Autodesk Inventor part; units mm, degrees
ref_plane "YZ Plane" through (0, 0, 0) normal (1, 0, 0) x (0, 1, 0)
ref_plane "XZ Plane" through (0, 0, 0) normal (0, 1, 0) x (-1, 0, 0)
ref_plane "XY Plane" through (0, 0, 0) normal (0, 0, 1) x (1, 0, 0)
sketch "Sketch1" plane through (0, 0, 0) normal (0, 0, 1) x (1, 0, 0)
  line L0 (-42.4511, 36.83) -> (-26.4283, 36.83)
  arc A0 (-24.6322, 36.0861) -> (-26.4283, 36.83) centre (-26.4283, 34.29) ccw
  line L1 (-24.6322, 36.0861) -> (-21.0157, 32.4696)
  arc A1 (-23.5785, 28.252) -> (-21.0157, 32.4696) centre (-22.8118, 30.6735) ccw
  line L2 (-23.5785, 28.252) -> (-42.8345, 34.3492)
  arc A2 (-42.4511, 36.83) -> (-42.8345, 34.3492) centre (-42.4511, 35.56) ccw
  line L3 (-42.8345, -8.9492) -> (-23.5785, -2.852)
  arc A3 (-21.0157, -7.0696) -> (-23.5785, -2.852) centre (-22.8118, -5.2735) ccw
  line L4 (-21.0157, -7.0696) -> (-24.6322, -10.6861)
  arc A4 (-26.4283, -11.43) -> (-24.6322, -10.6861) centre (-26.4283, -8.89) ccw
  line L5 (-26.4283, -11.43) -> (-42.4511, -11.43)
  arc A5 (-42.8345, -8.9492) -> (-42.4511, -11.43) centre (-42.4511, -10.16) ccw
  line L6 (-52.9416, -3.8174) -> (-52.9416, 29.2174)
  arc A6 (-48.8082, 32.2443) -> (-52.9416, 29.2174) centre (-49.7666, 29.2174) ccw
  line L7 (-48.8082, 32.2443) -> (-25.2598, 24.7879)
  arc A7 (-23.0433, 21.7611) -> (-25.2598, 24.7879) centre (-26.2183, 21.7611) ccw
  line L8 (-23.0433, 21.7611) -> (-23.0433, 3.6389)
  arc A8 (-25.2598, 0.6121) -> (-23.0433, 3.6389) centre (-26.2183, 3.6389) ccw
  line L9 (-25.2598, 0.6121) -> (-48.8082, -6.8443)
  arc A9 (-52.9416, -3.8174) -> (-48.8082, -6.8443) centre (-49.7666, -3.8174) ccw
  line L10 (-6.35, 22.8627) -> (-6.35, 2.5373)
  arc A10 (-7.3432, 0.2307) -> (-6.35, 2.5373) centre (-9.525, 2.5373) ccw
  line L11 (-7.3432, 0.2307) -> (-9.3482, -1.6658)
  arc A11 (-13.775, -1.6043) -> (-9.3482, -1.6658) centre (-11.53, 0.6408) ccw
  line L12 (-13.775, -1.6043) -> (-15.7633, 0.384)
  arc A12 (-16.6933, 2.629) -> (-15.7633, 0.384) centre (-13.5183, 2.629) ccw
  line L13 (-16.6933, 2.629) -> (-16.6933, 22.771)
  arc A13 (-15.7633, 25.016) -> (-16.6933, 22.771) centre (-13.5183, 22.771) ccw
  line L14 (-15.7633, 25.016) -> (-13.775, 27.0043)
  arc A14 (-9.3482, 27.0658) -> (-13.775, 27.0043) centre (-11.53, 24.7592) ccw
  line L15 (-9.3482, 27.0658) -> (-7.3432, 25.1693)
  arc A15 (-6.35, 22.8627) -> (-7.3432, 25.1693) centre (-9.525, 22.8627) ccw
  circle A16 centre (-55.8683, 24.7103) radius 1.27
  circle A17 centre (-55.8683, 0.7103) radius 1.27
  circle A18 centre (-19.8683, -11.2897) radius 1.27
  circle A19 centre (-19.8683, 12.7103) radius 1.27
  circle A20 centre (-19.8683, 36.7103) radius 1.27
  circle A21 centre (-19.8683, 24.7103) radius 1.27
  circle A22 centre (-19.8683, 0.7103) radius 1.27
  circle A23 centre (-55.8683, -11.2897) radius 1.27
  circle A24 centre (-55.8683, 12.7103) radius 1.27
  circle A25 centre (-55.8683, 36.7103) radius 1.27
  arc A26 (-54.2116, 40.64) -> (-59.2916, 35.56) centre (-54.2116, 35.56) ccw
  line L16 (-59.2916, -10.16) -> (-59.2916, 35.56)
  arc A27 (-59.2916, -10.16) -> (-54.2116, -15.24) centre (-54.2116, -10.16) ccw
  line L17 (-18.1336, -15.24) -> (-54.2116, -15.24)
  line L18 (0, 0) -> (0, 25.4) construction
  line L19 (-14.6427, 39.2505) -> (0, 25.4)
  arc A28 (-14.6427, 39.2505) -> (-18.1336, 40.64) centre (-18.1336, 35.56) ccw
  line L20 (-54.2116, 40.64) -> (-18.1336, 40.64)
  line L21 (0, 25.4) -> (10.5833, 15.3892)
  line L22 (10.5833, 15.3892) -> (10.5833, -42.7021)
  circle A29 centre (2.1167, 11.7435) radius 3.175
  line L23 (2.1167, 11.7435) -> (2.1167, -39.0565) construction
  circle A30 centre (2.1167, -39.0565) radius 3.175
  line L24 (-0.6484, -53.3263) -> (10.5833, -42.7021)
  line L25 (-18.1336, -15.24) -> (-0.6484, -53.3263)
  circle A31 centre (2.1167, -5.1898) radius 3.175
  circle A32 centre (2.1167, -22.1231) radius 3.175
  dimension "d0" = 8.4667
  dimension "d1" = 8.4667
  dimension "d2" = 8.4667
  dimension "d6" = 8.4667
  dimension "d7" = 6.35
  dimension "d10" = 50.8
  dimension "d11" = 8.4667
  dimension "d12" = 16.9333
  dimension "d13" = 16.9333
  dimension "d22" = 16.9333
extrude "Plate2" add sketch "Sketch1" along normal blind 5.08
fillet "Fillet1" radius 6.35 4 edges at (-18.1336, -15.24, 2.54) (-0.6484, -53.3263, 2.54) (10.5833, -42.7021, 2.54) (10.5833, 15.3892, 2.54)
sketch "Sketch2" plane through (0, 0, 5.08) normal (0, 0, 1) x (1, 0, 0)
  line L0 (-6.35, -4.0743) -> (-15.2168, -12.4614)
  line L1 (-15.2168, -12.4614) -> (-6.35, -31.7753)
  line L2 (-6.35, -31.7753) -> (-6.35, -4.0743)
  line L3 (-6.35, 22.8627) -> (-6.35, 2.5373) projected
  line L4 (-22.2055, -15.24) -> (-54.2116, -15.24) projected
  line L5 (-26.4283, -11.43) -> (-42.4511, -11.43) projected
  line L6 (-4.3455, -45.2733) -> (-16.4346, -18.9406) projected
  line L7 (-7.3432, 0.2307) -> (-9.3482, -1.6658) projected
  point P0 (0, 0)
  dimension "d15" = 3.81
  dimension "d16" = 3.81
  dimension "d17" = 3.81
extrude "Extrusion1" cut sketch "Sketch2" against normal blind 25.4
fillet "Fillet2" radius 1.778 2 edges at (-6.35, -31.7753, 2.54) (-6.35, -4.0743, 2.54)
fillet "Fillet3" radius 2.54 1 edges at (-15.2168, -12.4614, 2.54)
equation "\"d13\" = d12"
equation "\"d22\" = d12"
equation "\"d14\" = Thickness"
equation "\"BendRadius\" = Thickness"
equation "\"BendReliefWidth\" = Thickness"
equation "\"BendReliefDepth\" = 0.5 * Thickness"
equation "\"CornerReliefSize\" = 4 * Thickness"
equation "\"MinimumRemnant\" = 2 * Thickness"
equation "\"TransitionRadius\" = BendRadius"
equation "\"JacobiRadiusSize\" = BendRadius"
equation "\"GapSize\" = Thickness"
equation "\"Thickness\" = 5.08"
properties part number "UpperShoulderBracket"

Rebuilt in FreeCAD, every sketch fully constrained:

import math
import FreeCAD as App
import Part
import Sketcher
from FreeCAD import Vector
Q = App.Units.Quantity


def edges_at(feature, points):
    """Names of the edges that pass closest to the given points."""
    edges = feature.Shape.Edges
    near = lambda p: min(range(len(edges)), key=lambda i: edges[i].distToShape(Part.Vertex(*p))[0])
    return sorted({f"Edge{near(p) + 1}" for p in points})

doc = App.newDocument("Part")
body = doc.addObject("PartDesign::Body", "Body")

# Sketch on XY plane
sketch1 = body.newObject("Sketcher::SketchObject", "Sketch")
sketch1.AttachmentSupport = (doc.getObject("XY_Plane"), [""])
sketch1.MapMode = "FlatFace"
sketch1.addGeometry([
    Part.LineSegment(Vector(-18.1, 40.6, 0), Vector(-54.2, 40.6, 0)),  # 0
    Part.ArcOfCircle(Part.Circle(Vector(-54.2, 35.6, 0), Vector(0, 0, 1), 5.1), math.radians(90), math.radians(180)),  # 1
    Part.LineSegment(Vector(-59.3, 35.6, 0), Vector(-59.3, -10.2, 0)),  # 2
    Part.ArcOfCircle(Part.Circle(Vector(-54.2, -10.2, 0), Vector(0, 0, 1), 5.1), math.radians(180), math.radians(270)),  # 3
    Part.LineSegment(Vector(-54.2, -15.2, 0), Vector(-18.1, -15.2, 0)),  # 4
    Part.LineSegment(Vector(-18.1, -15.2, 0), Vector(-0.6, -53.3, 0)),  # 5
    Part.LineSegment(Vector(-0.6, -53.3, 0), Vector(10.6, -42.7, 0)),  # 6
    Part.LineSegment(Vector(10.6, -42.7, 0), Vector(10.6, 15.4, 0)),  # 7
    Part.LineSegment(Vector(10.6, 15.4, 0), Vector(0, 25.4, 0)),  # 8
    Part.LineSegment(Vector(0, 25.4, 0), Vector(-14.6, 39.3, 0)),  # 9
    Part.ArcOfCircle(Part.Circle(Vector(-18.1, 35.6, 0), Vector(0, 0, 1), 5.1), math.radians(47), math.radians(90)),  # 10
    Part.Circle(Vector(-55.9, -11.3, 0), Vector(0, 0, 1), 1.3),  # 11
    Part.ArcOfCircle(Part.Circle(Vector(-42.5, -10.2, 0), Vector(0, 0, 1), 1.3), math.radians(108), math.radians(270)),  # 12
    Part.LineSegment(Vector(-42.8, -8.9, 0), Vector(-23.6, -2.9, 0)),  # 13
    Part.ArcOfCircle(Part.Circle(Vector(-22.8, -5.3, 0), Vector(0, 0, 1), 2.5), math.radians(-45), math.radians(108)),  # 14
    Part.LineSegment(Vector(-21, -7.1, 0), Vector(-24.6, -10.7, 0)),  # 15
    Part.ArcOfCircle(Part.Circle(Vector(-26.4, -8.9, 0), Vector(0, 0, 1), 2.5), math.radians(-90), math.radians(-45)),  # 16
    Part.LineSegment(Vector(-26.4, -11.4, 0), Vector(-42.5, -11.4, 0)),  # 17
    Part.Circle(Vector(2.1, -39.1, 0), Vector(0, 0, 1), 3.2),  # 18
    Part.Circle(Vector(-19.9, -11.3, 0), Vector(0, 0, 1), 1.3),  # 19
    Part.Circle(Vector(2.1, -22.1, 0), Vector(0, 0, 1), 3.2),  # 20
    Part.Circle(Vector(-55.9, 0.7, 0), Vector(0, 0, 1), 1.3),  # 21
    Part.Circle(Vector(-55.9, 12.7, 0), Vector(0, 0, 1), 1.3),  # 22
    Part.ArcOfCircle(Part.Circle(Vector(-49.8, -3.8, 0), Vector(0, 0, 1), 3.2), math.radians(180), math.radians(288)),  # 23
    Part.LineSegment(Vector(-52.9, -3.8, 0), Vector(-52.9, 29.2, 0)),  # 24
    Part.ArcOfCircle(Part.Circle(Vector(-49.8, 29.2, 0), Vector(0, 0, 1), 3.2), math.radians(72), math.radians(180)),  # 25
    Part.LineSegment(Vector(-48.8, 32.2, 0), Vector(-25.3, 24.8, 0)),  # 26
    Part.ArcOfCircle(Part.Circle(Vector(-26.2, 21.8, 0), Vector(0, 0, 1), 3.2), math.radians(0), math.radians(72)),  # 27
    Part.LineSegment(Vector(-23, 21.8, 0), Vector(-23, 3.6, 0)),  # 28
    Part.ArcOfCircle(Part.Circle(Vector(-26.2, 3.6, 0), Vector(0, 0, 1), 3.2), math.radians(-72), math.radians(0)),  # 29
    Part.LineSegment(Vector(-25.3, 0.6, 0), Vector(-48.8, -6.8, 0)),  # 30
    Part.Circle(Vector(-55.9, 24.7, 0), Vector(0, 0, 1), 1.3),  # 31
    Part.Circle(Vector(-55.9, 36.7, 0), Vector(0, 0, 1), 1.3),  # 32
    Part.ArcOfCircle(Part.Circle(Vector(-42.5, 35.6, 0), Vector(0, 0, 1), 1.3), math.radians(90), math.radians(252)),  # 33
    Part.LineSegment(Vector(-42.5, 36.8, 0), Vector(-26.4, 36.8, 0)),  # 34
    Part.ArcOfCircle(Part.Circle(Vector(-26.4, 34.3, 0), Vector(0, 0, 1), 2.5), math.radians(45), math.radians(90)),  # 35
    Part.LineSegment(Vector(-24.6, 36.1, 0), Vector(-21, 32.5, 0)),  # 36
    Part.ArcOfCircle(Part.Circle(Vector(-22.8, 30.7, 0), Vector(0, 0, 1), 2.5), math.radians(-108), math.radians(45)),  # 37
    Part.LineSegment(Vector(-23.6, 28.3, 0), Vector(-42.8, 34.3, 0)),  # 38
    Part.Circle(Vector(-19.9, 0.7, 0), Vector(0, 0, 1), 1.3),  # 39
    Part.Circle(Vector(-19.9, 12.7, 0), Vector(0, 0, 1), 1.3),  # 40
    Part.ArcOfCircle(Part.Circle(Vector(-9.5, 22.9, 0), Vector(0, 0, 1), 3.2), math.radians(0), math.radians(47)),  # 41
    Part.LineSegment(Vector(-6.3, 22.9, 0), Vector(-6.3, 2.5, 0)),  # 42
    Part.ArcOfCircle(Part.Circle(Vector(-9.5, 2.5, 0), Vector(0, 0, 1), 3.2), math.radians(-47), math.radians(0)),  # 43
    Part.LineSegment(Vector(-7.3, 0.2, 0), Vector(-9.3, -1.7, 0)),  # 44
    Part.ArcOfCircle(Part.Circle(Vector(-11.5, 0.6, 0), Vector(0, 0, 1), 3.2), math.radians(-135), math.radians(-47)),  # 45
    Part.LineSegment(Vector(-13.8, -1.6, 0), Vector(-15.8, 0.4, 0)),  # 46
    Part.ArcOfCircle(Part.Circle(Vector(-13.5, 2.6, 0), Vector(0, 0, 1), 3.2), math.radians(180), math.radians(225)),  # 47
    Part.LineSegment(Vector(-16.7, 2.6, 0), Vector(-16.7, 22.8, 0)),  # 48
    Part.ArcOfCircle(Part.Circle(Vector(-13.5, 22.8, 0), Vector(0, 0, 1), 3.2), math.radians(135), math.radians(180)),  # 49
    Part.LineSegment(Vector(-15.8, 25, 0), Vector(-13.8, 27, 0)),  # 50
    Part.ArcOfCircle(Part.Circle(Vector(-11.5, 24.8, 0), Vector(0, 0, 1), 3.2), math.radians(47), math.radians(135)),  # 51
    Part.LineSegment(Vector(-9.3, 27.1, 0), Vector(-7.3, 25.2, 0)),  # 52
    Part.Circle(Vector(2.1, -5.2, 0), Vector(0, 0, 1), 3.2),  # 53
    Part.Circle(Vector(2.1, 11.7, 0), Vector(0, 0, 1), 3.2),  # 54
    Part.Circle(Vector(-19.9, 24.7, 0), Vector(0, 0, 1), 1.3),  # 55
    Part.Circle(Vector(-19.9, 36.7, 0), Vector(0, 0, 1), 1.3),  # 56
], False)
sketch1.addConstraint([
    Sketcher.Constraint("Tangent", 0, 2, 1, 1),
    Sketcher.Constraint("Tangent", 1, 2, 2, 1),
    Sketcher.Constraint("Tangent", 2, 2, 3, 1),
    Sketcher.Constraint("Tangent", 3, 2, 4, 1),
    Sketcher.Constraint("Coincident", 4, 2, 5, 1),
    Sketcher.Constraint("Coincident", 5, 2, 6, 1),
    Sketcher.Constraint("Coincident", 6, 2, 7, 1),
    Sketcher.Constraint("Coincident", 7, 2, 8, 1),
    Sketcher.Constraint("Coincident", 8, 2, 9, 1),
    Sketcher.Constraint("Tangent", 9, 2, 10, 1),
    Sketcher.Constraint("Tangent", 10, 2, 0, 1),
    Sketcher.Constraint("Tangent", 12, 1, 13, 1),
    Sketcher.Constraint("Tangent", 13, 2, 14, 2),
    Sketcher.Constraint("Tangent", 14, 1, 15, 1),
    Sketcher.Constraint("Tangent", 15, 2, 16, 2),
    Sketcher.Constraint("Tangent", 16, 1, 17, 1),
    Sketcher.Constraint("Tangent", 17, 2, 12, 2),
    Sketcher.Constraint("Tangent", 23, 1, 24, 1),
    Sketcher.Constraint("Tangent", 24, 2, 25, 2),
    Sketcher.Constraint("Tangent", 25, 1, 26, 1),
    Sketcher.Constraint("Tangent", 26, 2, 27, 2),
    Sketcher.Constraint("Tangent", 27, 1, 28, 1),
    Sketcher.Constraint("Tangent", 28, 2, 29, 2),
    Sketcher.Constraint("Tangent", 29, 1, 30, 1),
    Sketcher.Constraint("Tangent", 30, 2, 23, 2),
    Sketcher.Constraint("Tangent", 33, 1, 34, 1),
    Sketcher.Constraint("Tangent", 34, 2, 35, 2),
    Sketcher.Constraint("Tangent", 35, 1, 36, 1),
    Sketcher.Constraint("Tangent", 36, 2, 37, 2),
    Sketcher.Constraint("Tangent", 37, 1, 38, 1),
    Sketcher.Constraint("Tangent", 38, 2, 33, 2),
    Sketcher.Constraint("Tangent", 41, 1, 42, 1),
    Sketcher.Constraint("Tangent", 42, 2, 43, 2),
    Sketcher.Constraint("Tangent", 43, 1, 44, 1),
    Sketcher.Constraint("Tangent", 44, 2, 45, 2),
    Sketcher.Constraint("Tangent", 45, 1, 46, 1),
    Sketcher.Constraint("Tangent", 46, 2, 47, 2),
    Sketcher.Constraint("Tangent", 47, 1, 48, 1),
    Sketcher.Constraint("Tangent", 48, 2, 49, 2),
    Sketcher.Constraint("Tangent", 49, 1, 50, 1),
    Sketcher.Constraint("Tangent", 50, 2, 51, 2),
    Sketcher.Constraint("Tangent", 51, 1, 52, 1),
    Sketcher.Constraint("Tangent", 52, 2, 41, 2),
    Sketcher.Constraint("Horizontal", 0),
    Sketcher.Constraint("Vertical", 2),
    Sketcher.Constraint("Horizontal", 4),
    Sketcher.Constraint("Vertical", 7),
    Sketcher.Constraint("Horizontal", 17),
    Sketcher.Constraint("Vertical", 24),
    Sketcher.Constraint("Vertical", 28),
    Sketcher.Constraint("Horizontal", 34),
    Sketcher.Constraint("Vertical", 42),
    Sketcher.Constraint("Vertical", 48),
    Sketcher.Constraint("Equal", 1, 3),
    Sketcher.Constraint("Equal", 3, 10),
    Sketcher.Constraint("Equal", 11, 12),
    Sketcher.Constraint("Equal", 14, 16),
    Sketcher.Constraint("Equal", 12, 19),
    Sketcher.Constraint("Equal", 18, 20),
    Sketcher.Constraint("Equal", 19, 21),
    Sketcher.Constraint("Equal", 21, 22),
    Sketcher.Constraint("Equal", 20, 23),
    Sketcher.Constraint("Equal", 23, 25),
    Sketcher.Constraint("Equal", 25, 27),
    Sketcher.Constraint("Equal", 27, 29),
    Sketcher.Constraint("Equal", 22, 31),
    Sketcher.Constraint("Equal", 31, 32),
    Sketcher.Constraint("Equal", 32, 33),
    Sketcher.Constraint("Equal", 16, 35),
    Sketcher.Constraint("Equal", 35, 37),
    Sketcher.Constraint("Equal", 33, 39),
    Sketcher.Constraint("Equal", 39, 40),
    Sketcher.Constraint("Equal", 29, 41),
    Sketcher.Constraint("Equal", 41, 43),
    Sketcher.Constraint("Equal", 43, 45),
    Sketcher.Constraint("Equal", 45, 47),
    Sketcher.Constraint("Equal", 47, 49),
    Sketcher.Constraint("Equal", 49, 51),
    Sketcher.Constraint("Equal", 51, 53),
    Sketcher.Constraint("Equal", 53, 54),
    Sketcher.Constraint("Equal", 40, 55),
    Sketcher.Constraint("Equal", 55, 56),
    Sketcher.Constraint("PointOnObject", 8, 2, -2),
    Sketcher.Constraint("Parallel", 8, 9),
    Sketcher.Constraint("Parallel", 13, 30),
    Sketcher.Constraint("Perpendicular", 15, 36),
    Sketcher.Constraint("Parallel", 26, 38),
    Sketcher.Constraint("Parallel", 6, 44),
    Sketcher.Constraint("Parallel", 36, 46),
    Sketcher.Constraint("Perpendicular", 46, 50),
    Sketcher.Constraint("Parallel", 9, 52),
    Sketcher.Constraint("Horizontal", 3, 3, 12, 3),
    Sketcher.Constraint("Horizontal", 11, 3, 19, 3),
    Sketcher.Constraint("Horizontal", 10, 3, 33, 3),
    Sketcher.Constraint("Horizontal", 21, 3, 39, 3),
    Sketcher.Constraint("Horizontal", 22, 3, 40, 3),
    Sketcher.Constraint("Horizontal", 31, 3, 55, 3),
    Sketcher.Constraint("Horizontal", 32, 3, 56, 3),
    Sketcher.Constraint("Vertical", 18, 3, 20, 3),
    Sketcher.Constraint("Vertical", 11, 3, 21, 3),
    Sketcher.Constraint("Vertical", 21, 3, 22, 3),
    Sketcher.Constraint("Vertical", 22, 3, 31, 3),
    Sketcher.Constraint("Vertical", 31, 3, 32, 3),
    Sketcher.Constraint("Vertical", 12, 3, 33, 3),
    Sketcher.Constraint("Vertical", 16, 3, 35, 3),
    Sketcher.Constraint("Vertical", 14, 3, 37, 3),
    Sketcher.Constraint("Vertical", 19, 3, 39, 3),
    Sketcher.Constraint("Vertical", 39, 3, 40, 3),
    Sketcher.Constraint("Vertical", 45, 3, 51, 3),
    Sketcher.Constraint("Vertical", 20, 3, 53, 3),
    Sketcher.Constraint("Vertical", 53, 3, 54, 3),
    Sketcher.Constraint("Vertical", 40, 3, 55, 3),
    Sketcher.Constraint("Vertical", 55, 3, 56, 3),
    Sketcher.Constraint("Vertical", 10, 3, 4, 2),
    Sketcher.Constraint("Vertical", 26, 2, 29, 1),
    Sketcher.Constraint("Vertical", 44, 2, 51, 1),
    Sketcher.Constraint("Diameter", 18, Q("0.25 in")),
    Sketcher.Constraint("Diameter", 11, Q("0.1 in")),
    Sketcher.Constraint("Radius", 1, Q("0.2 in")),
    Sketcher.Constraint("Radius", 14, Q("0.1 in")),
    Sketcher.Constraint("DistanceX", 41, 1, -1, 1, Q("0.25 in")),
    Sketcher.Constraint("DistanceY", 2, 2, 2, 1, Q("1.8 in")),
    Sketcher.Constraint("DistanceY", -1, 1, 8, 2, Q("1 in")),
    Sketcher.Constraint("DistanceY", -1, 1, 1, 3, Q("1.4 in")),
    Sketcher.Constraint("DistanceY", 48, 1, 48, 2, Q("0.793 in")),
    Sketcher.Constraint("Angle", 5, Q("-65.3404 deg")),
    Sketcher.Constraint("Angle", 13, Q("17.5698 deg")),
    Sketcher.Constraint("DistanceX", 0, 2, 0, 1, Q("1.4204 in")),
    Sketcher.Constraint("DistanceY", 20, 3, -1, 1, Q("0.871 in")),
    Sketcher.Constraint("Distance", 13, Q("0.7952 in")),
    Sketcher.Constraint("Distance", 46, Q("0.1107 in")),
    Sketcher.Constraint("DistanceY", 7, 1, 7, 2, Q("58.0913 mm")),
    Sketcher.Constraint("DistanceY", 24, 1, 24, 2, Q("33.0348 mm")),
    Sketcher.Constraint("DistanceY", 28, 2, 28, 1, Q("18.1222 mm")),
    Sketcher.Constraint("DistanceY", 42, 2, 42, 1, Q("20.3254 mm")),
    Sketcher.Constraint("DistanceX", 12, 3, -1, 1, Q("1.6713 in")),
    Sketcher.Constraint("DistanceY", -1, 1, 22, 3, Q("0.5004 in")),
    Sketcher.Constraint("DistanceY", 23, 3, -1, 1, Q("0.1503 in")),
    Sketcher.Constraint("DistanceY", -1, 1, 41, 3, Q("0.9001 in")),
    Sketcher.Constraint("DistanceY", -1, 1, 9, 2, Q("1.5453 in")),
    Sketcher.Constraint("Distance", 5, Q("41.9082 mm")),
    Sketcher.Constraint("DistanceX", 11, 3, -1, 1, Q("55.8683 mm")),
    Sketcher.Constraint("DistanceY", 11, 3, -1, 1, Q("11.2897 mm")),
    Sketcher.Constraint("DistanceX", -1, 1, 18, 3, Q("2.1167 mm")),
    Sketcher.Constraint("DistanceY", 18, 3, -1, 1, Q("39.0565 mm")),
    Sketcher.Constraint("DistanceX", 19, 3, -1, 1, Q("19.8683 mm")),
    Sketcher.Constraint("DistanceY", -1, 1, 21, 3, Q("0.7103 mm")),
    Sketcher.Constraint("DistanceX", 23, 3, -1, 1, Q("49.7666 mm")),
    Sketcher.Constraint("DistanceY", -1, 1, 31, 3, Q("24.7103 mm")),
    Sketcher.Constraint("DistanceY", -1, 1, 32, 3, Q("36.7103 mm")),
    Sketcher.Constraint("DistanceY", 53, 3, -1, 1, Q("5.1898 mm")),
    Sketcher.Constraint("DistanceY", -1, 1, 54, 3, Q("11.7435 mm")),
])
pad1 = body.newObject("PartDesign::Pad", "Pad")
pad1.Profile = sketch1
pad1.Length = Q("0.2 in")
doc.recompute()

fillet = body.newObject("PartDesign::Fillet", "Fillet")
fillet.Base = (pad1, edges_at(pad1, [
    (-18.134, -15.24, 2.54),
    (-0.648, -53.326, 2.54),
    (10.583, -42.702, 2.54),
    (10.583, 15.389, 2.54),
]))
fillet.Radius = Q("0.25 in")

# Sketch on XY plane
sketch2 = body.newObject("Sketcher::SketchObject", "Sketch001")
sketch2.AttachmentSupport = (doc.getObject("XY_Plane"), [""])
sketch2.MapMode = "FlatFace"
sketch2.AttachmentOffset = App.Placement(Vector(0, 0, 0.2 * 25.4), App.Rotation())
sketch2.addGeometry([
    Part.LineSegment(Vector(-6, -32, 0), Vector(-6, -4, 0)),
    Part.LineSegment(Vector(-6, -4, 0), Vector(-15, -12, 0)),
    Part.LineSegment(Vector(-15, -12, 0), Vector(-6, -32, 0)),
], False)
sketch2.addConstraint([
    Sketcher.Constraint("Coincident", 0, 2, 1, 1),
    Sketcher.Constraint("Coincident", 1, 2, 2, 1),
    Sketcher.Constraint("Coincident", 2, 2, 0, 1),
    Sketcher.Constraint("Vertical", 0),
    Sketcher.Constraint("DistanceX", 0, 2, -1, 1, Q("0.25 in")),
    Sketcher.Constraint("Angle", 2, Q("-65.3407 deg")),
    Sketcher.Constraint("DistanceY", 0, 1, 0, 2, Q("1.0906 in")),
    Sketcher.Constraint("DistanceY", 2, 2, -1, 1, Q("1.251 in")),
    Sketcher.Constraint("Distance", 2, Q("0.8367 in")),
])
pocket1 = body.newObject("PartDesign::Pocket", "Pocket")
pocket1.Profile = sketch2
pocket1.Length = Q("1 in")
doc.recompute()

fillet2 = body.newObject("PartDesign::Fillet", "Fillet001")
fillet2.Base = (pocket1, edges_at(pocket1, [(-6.35, -31.775, 2.54), (-6.35, -4.074, 2.54)]))
fillet2.Radius = Q("0.07 in")
doc.recompute()

fillet3 = body.newObject("PartDesign::Fillet", "Fillet002")
fillet3.Base = (fillet2, edges_at(fillet2, [(-15.217, -12.461, 2.54)]))
fillet3.Radius = Q("0.1 in")

doc.recompute()
